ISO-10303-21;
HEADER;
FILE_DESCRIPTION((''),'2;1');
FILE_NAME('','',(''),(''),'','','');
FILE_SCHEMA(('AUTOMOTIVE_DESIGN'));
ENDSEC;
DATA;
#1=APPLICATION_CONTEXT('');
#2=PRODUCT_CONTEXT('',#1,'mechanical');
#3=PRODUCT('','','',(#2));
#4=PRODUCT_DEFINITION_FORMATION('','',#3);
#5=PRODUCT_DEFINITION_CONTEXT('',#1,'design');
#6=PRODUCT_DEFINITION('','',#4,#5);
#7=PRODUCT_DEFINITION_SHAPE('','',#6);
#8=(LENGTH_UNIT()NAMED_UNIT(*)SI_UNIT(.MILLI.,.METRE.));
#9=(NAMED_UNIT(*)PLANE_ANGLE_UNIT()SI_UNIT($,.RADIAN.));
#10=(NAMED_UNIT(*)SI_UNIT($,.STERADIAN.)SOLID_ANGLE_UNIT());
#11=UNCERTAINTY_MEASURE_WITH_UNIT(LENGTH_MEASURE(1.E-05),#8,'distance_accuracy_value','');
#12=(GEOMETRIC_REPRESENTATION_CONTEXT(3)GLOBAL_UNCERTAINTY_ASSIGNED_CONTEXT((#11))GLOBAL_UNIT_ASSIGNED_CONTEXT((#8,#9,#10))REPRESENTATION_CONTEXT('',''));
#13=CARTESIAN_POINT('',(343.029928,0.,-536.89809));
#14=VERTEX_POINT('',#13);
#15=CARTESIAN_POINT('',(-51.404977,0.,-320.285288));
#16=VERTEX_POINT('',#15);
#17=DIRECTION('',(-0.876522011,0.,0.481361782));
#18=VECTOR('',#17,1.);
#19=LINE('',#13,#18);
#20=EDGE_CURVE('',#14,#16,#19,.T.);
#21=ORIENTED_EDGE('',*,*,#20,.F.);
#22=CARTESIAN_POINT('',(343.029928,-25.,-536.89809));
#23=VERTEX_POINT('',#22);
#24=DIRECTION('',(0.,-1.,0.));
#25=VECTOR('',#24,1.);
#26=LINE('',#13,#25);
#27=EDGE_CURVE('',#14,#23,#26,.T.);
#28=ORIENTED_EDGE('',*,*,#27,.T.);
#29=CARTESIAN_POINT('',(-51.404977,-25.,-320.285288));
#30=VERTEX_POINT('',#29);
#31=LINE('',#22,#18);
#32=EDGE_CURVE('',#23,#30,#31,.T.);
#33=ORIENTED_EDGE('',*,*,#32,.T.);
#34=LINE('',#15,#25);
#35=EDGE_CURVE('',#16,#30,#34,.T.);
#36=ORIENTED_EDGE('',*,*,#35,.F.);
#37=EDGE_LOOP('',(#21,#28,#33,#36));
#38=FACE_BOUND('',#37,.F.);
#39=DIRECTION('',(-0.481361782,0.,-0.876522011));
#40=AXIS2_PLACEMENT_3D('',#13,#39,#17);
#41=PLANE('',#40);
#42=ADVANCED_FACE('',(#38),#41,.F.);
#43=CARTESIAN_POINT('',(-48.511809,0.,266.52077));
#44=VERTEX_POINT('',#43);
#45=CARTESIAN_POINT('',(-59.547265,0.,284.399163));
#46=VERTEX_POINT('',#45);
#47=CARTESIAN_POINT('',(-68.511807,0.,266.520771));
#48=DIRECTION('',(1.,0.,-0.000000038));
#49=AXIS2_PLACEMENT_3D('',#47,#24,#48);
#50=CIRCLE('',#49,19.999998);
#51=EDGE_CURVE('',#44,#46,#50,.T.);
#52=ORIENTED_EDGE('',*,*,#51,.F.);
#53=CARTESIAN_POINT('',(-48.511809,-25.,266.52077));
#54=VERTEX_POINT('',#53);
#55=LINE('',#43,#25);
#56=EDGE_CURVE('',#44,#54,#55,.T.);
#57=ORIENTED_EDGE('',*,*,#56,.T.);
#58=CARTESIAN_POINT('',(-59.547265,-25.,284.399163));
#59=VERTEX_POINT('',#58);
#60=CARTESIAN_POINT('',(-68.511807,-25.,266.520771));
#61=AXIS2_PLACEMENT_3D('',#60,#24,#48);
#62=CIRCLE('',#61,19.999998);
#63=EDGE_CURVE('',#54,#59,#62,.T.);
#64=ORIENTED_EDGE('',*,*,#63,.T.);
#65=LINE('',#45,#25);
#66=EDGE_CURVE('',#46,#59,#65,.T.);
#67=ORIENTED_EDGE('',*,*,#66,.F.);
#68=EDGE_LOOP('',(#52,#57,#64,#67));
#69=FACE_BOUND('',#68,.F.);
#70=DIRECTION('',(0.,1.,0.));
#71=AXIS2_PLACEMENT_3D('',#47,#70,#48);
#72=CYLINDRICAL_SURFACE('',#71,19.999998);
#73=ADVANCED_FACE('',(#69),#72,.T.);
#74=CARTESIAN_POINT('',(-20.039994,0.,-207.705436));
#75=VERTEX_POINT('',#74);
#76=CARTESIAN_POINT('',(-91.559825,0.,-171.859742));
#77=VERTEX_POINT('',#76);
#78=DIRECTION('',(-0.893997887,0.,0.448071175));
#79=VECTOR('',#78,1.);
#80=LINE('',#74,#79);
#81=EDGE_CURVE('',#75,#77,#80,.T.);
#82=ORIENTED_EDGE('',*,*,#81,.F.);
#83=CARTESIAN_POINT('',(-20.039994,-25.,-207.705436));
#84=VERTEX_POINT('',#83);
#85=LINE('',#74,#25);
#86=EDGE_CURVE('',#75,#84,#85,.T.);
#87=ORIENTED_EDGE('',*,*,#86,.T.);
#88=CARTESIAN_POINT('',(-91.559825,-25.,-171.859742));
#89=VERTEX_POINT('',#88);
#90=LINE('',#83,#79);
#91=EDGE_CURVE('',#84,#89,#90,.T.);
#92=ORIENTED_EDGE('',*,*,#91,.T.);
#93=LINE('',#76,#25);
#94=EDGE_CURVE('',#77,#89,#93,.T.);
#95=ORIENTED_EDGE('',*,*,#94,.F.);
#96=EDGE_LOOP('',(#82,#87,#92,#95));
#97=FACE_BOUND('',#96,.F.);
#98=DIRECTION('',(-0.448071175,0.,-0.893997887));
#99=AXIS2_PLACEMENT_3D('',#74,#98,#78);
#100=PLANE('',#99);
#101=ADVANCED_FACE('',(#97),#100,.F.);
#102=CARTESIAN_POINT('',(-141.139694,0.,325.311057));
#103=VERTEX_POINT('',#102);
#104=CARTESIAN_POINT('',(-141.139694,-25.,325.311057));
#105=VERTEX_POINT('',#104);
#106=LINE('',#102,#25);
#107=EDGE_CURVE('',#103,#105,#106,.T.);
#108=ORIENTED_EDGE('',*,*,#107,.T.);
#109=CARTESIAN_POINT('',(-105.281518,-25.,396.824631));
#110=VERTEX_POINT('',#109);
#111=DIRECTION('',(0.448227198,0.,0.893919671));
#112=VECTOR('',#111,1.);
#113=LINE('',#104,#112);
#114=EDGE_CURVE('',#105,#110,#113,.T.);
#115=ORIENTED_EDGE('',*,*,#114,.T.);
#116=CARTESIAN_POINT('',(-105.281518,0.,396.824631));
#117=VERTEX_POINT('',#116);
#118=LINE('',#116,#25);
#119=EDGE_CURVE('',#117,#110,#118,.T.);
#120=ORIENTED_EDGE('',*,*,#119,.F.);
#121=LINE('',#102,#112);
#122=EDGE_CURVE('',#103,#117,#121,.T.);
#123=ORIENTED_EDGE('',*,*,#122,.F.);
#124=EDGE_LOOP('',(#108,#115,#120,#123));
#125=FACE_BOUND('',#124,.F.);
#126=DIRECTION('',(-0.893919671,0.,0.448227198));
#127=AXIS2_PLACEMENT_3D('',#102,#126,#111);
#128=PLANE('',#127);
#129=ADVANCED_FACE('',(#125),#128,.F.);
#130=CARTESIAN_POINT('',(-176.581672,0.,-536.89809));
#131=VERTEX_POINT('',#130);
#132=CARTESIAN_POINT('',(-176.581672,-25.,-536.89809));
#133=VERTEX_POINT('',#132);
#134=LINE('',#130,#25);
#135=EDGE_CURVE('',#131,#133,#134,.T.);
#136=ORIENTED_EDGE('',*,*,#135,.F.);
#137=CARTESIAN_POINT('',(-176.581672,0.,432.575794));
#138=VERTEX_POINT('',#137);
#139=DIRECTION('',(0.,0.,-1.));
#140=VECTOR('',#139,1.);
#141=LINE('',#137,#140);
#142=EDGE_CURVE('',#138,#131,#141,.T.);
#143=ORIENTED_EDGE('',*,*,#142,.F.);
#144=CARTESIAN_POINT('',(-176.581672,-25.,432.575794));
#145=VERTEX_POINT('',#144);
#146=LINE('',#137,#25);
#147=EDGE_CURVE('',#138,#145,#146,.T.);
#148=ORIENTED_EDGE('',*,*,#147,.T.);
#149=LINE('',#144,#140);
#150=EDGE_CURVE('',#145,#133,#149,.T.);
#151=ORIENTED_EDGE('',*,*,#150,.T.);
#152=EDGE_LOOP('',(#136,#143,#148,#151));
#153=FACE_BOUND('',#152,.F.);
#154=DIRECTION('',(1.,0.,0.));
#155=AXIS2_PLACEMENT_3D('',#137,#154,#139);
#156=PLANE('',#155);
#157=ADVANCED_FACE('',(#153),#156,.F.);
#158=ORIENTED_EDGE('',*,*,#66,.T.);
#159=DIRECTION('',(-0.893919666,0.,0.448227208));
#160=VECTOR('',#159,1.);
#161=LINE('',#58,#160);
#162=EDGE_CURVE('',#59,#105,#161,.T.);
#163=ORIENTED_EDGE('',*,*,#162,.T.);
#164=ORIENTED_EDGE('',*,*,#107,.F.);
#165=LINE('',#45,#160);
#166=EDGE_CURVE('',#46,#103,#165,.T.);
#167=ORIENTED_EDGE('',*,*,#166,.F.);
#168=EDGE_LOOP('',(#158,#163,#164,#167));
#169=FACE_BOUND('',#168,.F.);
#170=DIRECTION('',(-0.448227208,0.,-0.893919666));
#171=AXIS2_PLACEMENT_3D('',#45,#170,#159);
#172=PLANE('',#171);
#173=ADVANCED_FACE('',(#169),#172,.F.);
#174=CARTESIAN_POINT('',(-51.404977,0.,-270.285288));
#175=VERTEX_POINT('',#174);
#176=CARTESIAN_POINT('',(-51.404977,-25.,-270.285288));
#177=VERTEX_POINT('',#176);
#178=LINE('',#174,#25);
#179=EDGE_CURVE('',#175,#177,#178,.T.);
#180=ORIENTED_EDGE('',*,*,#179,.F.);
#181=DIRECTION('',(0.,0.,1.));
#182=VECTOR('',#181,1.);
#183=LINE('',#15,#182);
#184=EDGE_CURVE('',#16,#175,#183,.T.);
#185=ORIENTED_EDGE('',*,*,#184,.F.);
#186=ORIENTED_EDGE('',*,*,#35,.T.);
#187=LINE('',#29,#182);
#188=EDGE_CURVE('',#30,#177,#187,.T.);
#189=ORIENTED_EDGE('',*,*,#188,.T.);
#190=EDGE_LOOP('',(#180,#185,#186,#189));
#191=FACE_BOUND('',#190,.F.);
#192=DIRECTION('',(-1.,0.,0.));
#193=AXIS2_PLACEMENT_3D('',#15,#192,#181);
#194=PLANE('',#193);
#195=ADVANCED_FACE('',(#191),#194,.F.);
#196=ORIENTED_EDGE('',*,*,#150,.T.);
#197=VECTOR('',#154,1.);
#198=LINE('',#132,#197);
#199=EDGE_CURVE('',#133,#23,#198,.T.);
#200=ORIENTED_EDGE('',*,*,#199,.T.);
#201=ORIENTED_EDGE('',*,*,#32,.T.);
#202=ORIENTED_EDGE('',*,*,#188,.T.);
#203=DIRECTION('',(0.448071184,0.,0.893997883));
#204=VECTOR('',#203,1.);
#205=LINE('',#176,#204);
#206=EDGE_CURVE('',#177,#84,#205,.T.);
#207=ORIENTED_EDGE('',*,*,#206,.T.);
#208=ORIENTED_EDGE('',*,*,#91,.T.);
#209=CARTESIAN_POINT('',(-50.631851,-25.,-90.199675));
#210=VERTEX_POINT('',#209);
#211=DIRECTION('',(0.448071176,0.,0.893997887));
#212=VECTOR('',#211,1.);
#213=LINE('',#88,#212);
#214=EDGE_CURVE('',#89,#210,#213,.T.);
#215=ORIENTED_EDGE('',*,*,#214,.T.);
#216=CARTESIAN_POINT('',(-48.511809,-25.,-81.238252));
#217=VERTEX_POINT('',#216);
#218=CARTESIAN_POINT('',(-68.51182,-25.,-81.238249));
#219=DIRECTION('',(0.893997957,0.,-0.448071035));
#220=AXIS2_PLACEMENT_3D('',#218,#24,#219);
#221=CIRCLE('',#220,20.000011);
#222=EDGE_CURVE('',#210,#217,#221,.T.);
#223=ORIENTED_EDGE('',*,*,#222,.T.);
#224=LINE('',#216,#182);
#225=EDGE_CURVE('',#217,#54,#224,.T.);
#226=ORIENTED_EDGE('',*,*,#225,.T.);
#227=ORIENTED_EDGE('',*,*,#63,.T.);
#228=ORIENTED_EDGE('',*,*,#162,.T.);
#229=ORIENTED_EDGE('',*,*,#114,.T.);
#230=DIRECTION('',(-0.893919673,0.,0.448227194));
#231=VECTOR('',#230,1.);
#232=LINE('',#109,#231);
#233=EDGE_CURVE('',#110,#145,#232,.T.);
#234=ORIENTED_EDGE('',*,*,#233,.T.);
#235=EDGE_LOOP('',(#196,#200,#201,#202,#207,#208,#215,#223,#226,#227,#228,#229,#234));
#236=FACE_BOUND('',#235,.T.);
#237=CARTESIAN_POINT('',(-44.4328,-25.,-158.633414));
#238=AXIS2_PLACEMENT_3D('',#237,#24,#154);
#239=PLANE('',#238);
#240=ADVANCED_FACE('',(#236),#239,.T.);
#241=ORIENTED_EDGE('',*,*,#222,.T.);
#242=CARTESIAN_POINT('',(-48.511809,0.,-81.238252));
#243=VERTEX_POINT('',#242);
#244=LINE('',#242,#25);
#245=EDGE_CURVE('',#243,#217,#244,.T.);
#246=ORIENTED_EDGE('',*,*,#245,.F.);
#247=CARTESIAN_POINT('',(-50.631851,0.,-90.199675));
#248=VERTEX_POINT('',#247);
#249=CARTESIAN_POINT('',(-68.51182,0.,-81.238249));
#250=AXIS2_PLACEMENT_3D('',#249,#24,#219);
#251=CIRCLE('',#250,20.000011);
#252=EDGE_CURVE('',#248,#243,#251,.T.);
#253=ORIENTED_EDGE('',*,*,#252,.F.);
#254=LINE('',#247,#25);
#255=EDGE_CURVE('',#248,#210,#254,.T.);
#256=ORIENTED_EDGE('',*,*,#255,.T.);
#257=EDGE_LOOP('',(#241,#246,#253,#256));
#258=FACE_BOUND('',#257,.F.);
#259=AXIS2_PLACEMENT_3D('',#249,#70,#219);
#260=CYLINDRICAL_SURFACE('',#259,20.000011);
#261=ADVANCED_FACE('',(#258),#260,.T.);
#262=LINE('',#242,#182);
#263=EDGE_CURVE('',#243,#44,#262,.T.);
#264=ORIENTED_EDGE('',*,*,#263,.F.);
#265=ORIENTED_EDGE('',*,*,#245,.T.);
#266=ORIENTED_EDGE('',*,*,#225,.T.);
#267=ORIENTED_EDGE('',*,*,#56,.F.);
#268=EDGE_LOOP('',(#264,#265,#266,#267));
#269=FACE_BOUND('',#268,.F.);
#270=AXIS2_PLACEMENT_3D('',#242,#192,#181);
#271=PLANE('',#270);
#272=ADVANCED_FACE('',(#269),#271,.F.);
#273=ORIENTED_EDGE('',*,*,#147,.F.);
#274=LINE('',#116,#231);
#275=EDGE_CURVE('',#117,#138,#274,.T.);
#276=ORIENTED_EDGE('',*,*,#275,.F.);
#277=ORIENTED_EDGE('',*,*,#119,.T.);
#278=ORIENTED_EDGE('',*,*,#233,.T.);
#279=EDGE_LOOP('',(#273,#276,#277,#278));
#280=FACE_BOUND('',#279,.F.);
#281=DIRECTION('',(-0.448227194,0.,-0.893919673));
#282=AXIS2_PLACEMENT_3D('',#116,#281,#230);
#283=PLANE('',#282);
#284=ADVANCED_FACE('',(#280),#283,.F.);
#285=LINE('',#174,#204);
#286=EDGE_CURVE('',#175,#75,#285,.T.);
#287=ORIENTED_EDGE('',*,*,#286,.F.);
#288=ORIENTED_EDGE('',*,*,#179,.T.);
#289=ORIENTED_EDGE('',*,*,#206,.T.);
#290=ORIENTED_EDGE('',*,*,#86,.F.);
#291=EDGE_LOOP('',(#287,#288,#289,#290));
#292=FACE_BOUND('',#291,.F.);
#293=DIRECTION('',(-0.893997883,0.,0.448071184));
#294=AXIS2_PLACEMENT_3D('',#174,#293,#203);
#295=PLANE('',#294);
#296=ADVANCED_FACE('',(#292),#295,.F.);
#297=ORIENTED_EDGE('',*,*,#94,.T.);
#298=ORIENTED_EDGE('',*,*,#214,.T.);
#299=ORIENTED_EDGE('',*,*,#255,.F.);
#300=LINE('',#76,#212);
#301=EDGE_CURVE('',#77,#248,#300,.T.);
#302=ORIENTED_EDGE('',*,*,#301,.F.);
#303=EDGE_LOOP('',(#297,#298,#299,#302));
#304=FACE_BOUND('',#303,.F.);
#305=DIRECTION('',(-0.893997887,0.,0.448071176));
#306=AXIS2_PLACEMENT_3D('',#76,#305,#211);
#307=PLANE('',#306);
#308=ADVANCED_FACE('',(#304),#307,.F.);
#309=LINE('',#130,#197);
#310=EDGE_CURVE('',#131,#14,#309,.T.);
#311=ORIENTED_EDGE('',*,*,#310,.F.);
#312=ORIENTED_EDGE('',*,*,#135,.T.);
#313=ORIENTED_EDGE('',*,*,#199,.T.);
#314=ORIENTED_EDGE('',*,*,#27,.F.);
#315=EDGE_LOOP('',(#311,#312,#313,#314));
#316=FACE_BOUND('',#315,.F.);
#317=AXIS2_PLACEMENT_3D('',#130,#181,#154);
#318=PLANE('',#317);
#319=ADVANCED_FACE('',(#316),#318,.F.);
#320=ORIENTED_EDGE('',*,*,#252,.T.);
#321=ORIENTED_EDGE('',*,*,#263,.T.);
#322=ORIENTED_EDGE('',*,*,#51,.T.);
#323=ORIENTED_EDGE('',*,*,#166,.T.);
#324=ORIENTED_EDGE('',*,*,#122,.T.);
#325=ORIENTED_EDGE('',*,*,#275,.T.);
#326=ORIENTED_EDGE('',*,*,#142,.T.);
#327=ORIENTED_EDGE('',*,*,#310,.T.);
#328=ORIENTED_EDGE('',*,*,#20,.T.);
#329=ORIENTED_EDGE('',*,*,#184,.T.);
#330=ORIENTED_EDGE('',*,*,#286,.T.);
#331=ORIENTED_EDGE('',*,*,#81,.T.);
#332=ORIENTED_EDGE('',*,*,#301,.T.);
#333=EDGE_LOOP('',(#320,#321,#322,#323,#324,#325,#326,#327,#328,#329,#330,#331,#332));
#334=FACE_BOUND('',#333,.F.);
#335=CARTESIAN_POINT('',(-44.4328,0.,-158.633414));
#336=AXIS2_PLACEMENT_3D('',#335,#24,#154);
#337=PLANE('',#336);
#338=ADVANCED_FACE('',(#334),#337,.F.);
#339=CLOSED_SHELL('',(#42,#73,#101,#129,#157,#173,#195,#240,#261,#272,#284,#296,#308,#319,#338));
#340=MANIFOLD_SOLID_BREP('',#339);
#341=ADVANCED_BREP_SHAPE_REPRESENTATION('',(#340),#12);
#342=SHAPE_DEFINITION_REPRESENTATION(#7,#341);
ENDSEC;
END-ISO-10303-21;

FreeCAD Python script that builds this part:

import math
import FreeCAD as App
import Part
import Sketcher
from FreeCAD import Vector
Q = App.Units.Quantity

doc = App.newDocument("Part")
body = doc.addObject("PartDesign::Body", "Body")

# Sketch on XZ plane
sketch1 = body.newObject("Sketcher::SketchObject", "Sketch")
sketch1.AttachmentSupport = (doc.getObject("XZ_Plane"), [""])
sketch1.MapMode = "FlatFace"
sketch1.addGeometry(Part.LineSegment(Vector(-176.581672, -536.89809, 0), Vector(343.029928, -536.89809, 0)), False)
sketch1.addGeometry(Part.LineSegment(Vector(343.029928, -536.89809, 0), Vector(-51.404977, -320.285288, 0)), False)
sketch1.addGeometry(Part.LineSegment(Vector(-51.404977, -320.285288, 0), Vector(-51.404977, -270.285288, 0)), False)
sketch1.addGeometry(Part.LineSegment(Vector(-51.404977, -270.285288, 0), Vector(-20.039994, -207.705436, 0)), False)
sketch1.addGeometry(Part.LineSegment(Vector(-20.039994, -207.705436, 0), Vector(-91.559825, -171.859742, 0)), False)
sketch1.addGeometry(Part.LineSegment(Vector(-91.559825, -171.859742, 0), Vector(-50.631851, -90.199675, 0)), False)
sketch1.addGeometry(Part.ArcOfCircle(Part.Circle(Vector(-68.51182, -81.238249, 0), Vector(0, 0, 1), 20.000011), math.radians(-26.619991), math.radians(-0.000007)), False)
sketch1.addGeometry(Part.LineSegment(Vector(-48.511809, -81.238252, 0), Vector(-48.511809, 266.52077, 0)), False)
sketch1.addGeometry(Part.ArcOfCircle(Part.Circle(Vector(-68.511807, 266.520771, 0), Vector(0, 0, 1), 19.999998), math.radians(-0.000002), math.radians(63.370004)), False)
sketch1.addGeometry(Part.LineSegment(Vector(-59.547265, 284.399163, 0), Vector(-141.139694, 325.311057, 0)), False)
sketch1.addGeometry(Part.LineSegment(Vector(-141.139694, 325.311057, 0), Vector(-105.281518, 396.824631, 0)), False)
sketch1.addGeometry(Part.LineSegment(Vector(-105.281518, 396.824631, 0), Vector(-176.581672, 432.575794, 0)), False)
sketch1.addGeometry(Part.LineSegment(Vector(-176.581672, 432.575794, 0), Vector(-176.581672, -536.89809, 0)), False)
sketch1.addConstraint(Sketcher.Constraint("Coincident", 0, 2, 1, 1))
sketch1.addConstraint(Sketcher.Constraint("Coincident", 1, 2, 2, 1))
sketch1.addConstraint(Sketcher.Constraint("Coincident", 2, 2, 3, 1))
sketch1.addConstraint(Sketcher.Constraint("Coincident", 3, 2, 4, 1))
sketch1.addConstraint(Sketcher.Constraint("Coincident", 4, 2, 5, 1))
sketch1.addConstraint(Sketcher.Constraint("Tangent", 5, 2, 6, 1))
sketch1.addConstraint(Sketcher.Constraint("Tangent", 6, 2, 7, 1))
sketch1.addConstraint(Sketcher.Constraint("Tangent", 7, 2, 8, 1))
sketch1.addConstraint(Sketcher.Constraint("Tangent", 8, 2, 9, 1))
sketch1.addConstraint(Sketcher.Constraint("Coincident", 9, 2, 10, 1))
sketch1.addConstraint(Sketcher.Constraint("Coincident", 10, 2, 11, 1))
sketch1.addConstraint(Sketcher.Constraint("Coincident", 11, 2, 12, 1))
sketch1.addConstraint(Sketcher.Constraint("Coincident", 12, 2, 0, 1))
sketch1.addConstraint(Sketcher.Constraint("Horizontal", 0))
sketch1.addConstraint(Sketcher.Constraint("Vertical", 2))
sketch1.addConstraint(Sketcher.Constraint("Vertical", 7))
sketch1.addConstraint(Sketcher.Constraint("Vertical", 12))
sketch1.addConstraint(Sketcher.Constraint("Perpendicular", 3, 4))
sketch1.addConstraint(Sketcher.Constraint("Perpendicular", 4, 5))
sketch1.addConstraint(Sketcher.Constraint("Perpendicular", 9, 10))
sketch1.addConstraint(Sketcher.Constraint("Perpendicular", 10, 11))
sketch1.addConstraint(Sketcher.Constraint("Equal", 4, 10))
sketch1.addConstraint(Sketcher.Constraint("Radius", 8, 19.999998))
sketch1.addConstraint(Sketcher.Constraint("DistanceY", 2, 1, 2, 2, 50.0))
sketch1.addConstraint(Sketcher.Constraint("Distance", 1, 450.0))
sketch1.addConstraint(Sketcher.Constraint("Distance", 3, 70.0))
sketch1.addConstraint(Sketcher.Constraint("Distance", 4, 80.0))
sketch1.addConstraint(Sketcher.Constraint("Angle", 3, Q("63.38 deg")))
sketch1.addConstraint(Sketcher.Constraint("Angle", 9, Q("153.37 deg")))
sketch1.addConstraint(Sketcher.Constraint("Radius", 6, 20.000011))
sketch1.addConstraint(Sketcher.Constraint("DistanceX", 0, 1, 0, 2, 519.6116))
sketch1.addConstraint(Sketcher.Constraint("Distance", 9, 91.274901))
sketch1.addConstraint(Sketcher.Constraint("DistanceY", 7, 1, 7, 2, 347.759022))
sketch1.addConstraint(Sketcher.Constraint("DistanceY", 12, 2, 12, 1, 969.473884))
sketch1.addConstraint(Sketcher.Constraint("DistanceX", 6, 3, -1, 1, 68.51182))
sketch1.addConstraint(Sketcher.Constraint("DistanceY", 6, 3, -1, 1, 81.238249))
sketch1.addConstraint(Sketcher.Constraint("DistanceX", -1, 1, 0, 2, 343.029928))
pad1 = body.newObject("PartDesign::Pad", "Pad")
pad1.Profile = sketch1
pad1.Length = 25

doc.recompute()
